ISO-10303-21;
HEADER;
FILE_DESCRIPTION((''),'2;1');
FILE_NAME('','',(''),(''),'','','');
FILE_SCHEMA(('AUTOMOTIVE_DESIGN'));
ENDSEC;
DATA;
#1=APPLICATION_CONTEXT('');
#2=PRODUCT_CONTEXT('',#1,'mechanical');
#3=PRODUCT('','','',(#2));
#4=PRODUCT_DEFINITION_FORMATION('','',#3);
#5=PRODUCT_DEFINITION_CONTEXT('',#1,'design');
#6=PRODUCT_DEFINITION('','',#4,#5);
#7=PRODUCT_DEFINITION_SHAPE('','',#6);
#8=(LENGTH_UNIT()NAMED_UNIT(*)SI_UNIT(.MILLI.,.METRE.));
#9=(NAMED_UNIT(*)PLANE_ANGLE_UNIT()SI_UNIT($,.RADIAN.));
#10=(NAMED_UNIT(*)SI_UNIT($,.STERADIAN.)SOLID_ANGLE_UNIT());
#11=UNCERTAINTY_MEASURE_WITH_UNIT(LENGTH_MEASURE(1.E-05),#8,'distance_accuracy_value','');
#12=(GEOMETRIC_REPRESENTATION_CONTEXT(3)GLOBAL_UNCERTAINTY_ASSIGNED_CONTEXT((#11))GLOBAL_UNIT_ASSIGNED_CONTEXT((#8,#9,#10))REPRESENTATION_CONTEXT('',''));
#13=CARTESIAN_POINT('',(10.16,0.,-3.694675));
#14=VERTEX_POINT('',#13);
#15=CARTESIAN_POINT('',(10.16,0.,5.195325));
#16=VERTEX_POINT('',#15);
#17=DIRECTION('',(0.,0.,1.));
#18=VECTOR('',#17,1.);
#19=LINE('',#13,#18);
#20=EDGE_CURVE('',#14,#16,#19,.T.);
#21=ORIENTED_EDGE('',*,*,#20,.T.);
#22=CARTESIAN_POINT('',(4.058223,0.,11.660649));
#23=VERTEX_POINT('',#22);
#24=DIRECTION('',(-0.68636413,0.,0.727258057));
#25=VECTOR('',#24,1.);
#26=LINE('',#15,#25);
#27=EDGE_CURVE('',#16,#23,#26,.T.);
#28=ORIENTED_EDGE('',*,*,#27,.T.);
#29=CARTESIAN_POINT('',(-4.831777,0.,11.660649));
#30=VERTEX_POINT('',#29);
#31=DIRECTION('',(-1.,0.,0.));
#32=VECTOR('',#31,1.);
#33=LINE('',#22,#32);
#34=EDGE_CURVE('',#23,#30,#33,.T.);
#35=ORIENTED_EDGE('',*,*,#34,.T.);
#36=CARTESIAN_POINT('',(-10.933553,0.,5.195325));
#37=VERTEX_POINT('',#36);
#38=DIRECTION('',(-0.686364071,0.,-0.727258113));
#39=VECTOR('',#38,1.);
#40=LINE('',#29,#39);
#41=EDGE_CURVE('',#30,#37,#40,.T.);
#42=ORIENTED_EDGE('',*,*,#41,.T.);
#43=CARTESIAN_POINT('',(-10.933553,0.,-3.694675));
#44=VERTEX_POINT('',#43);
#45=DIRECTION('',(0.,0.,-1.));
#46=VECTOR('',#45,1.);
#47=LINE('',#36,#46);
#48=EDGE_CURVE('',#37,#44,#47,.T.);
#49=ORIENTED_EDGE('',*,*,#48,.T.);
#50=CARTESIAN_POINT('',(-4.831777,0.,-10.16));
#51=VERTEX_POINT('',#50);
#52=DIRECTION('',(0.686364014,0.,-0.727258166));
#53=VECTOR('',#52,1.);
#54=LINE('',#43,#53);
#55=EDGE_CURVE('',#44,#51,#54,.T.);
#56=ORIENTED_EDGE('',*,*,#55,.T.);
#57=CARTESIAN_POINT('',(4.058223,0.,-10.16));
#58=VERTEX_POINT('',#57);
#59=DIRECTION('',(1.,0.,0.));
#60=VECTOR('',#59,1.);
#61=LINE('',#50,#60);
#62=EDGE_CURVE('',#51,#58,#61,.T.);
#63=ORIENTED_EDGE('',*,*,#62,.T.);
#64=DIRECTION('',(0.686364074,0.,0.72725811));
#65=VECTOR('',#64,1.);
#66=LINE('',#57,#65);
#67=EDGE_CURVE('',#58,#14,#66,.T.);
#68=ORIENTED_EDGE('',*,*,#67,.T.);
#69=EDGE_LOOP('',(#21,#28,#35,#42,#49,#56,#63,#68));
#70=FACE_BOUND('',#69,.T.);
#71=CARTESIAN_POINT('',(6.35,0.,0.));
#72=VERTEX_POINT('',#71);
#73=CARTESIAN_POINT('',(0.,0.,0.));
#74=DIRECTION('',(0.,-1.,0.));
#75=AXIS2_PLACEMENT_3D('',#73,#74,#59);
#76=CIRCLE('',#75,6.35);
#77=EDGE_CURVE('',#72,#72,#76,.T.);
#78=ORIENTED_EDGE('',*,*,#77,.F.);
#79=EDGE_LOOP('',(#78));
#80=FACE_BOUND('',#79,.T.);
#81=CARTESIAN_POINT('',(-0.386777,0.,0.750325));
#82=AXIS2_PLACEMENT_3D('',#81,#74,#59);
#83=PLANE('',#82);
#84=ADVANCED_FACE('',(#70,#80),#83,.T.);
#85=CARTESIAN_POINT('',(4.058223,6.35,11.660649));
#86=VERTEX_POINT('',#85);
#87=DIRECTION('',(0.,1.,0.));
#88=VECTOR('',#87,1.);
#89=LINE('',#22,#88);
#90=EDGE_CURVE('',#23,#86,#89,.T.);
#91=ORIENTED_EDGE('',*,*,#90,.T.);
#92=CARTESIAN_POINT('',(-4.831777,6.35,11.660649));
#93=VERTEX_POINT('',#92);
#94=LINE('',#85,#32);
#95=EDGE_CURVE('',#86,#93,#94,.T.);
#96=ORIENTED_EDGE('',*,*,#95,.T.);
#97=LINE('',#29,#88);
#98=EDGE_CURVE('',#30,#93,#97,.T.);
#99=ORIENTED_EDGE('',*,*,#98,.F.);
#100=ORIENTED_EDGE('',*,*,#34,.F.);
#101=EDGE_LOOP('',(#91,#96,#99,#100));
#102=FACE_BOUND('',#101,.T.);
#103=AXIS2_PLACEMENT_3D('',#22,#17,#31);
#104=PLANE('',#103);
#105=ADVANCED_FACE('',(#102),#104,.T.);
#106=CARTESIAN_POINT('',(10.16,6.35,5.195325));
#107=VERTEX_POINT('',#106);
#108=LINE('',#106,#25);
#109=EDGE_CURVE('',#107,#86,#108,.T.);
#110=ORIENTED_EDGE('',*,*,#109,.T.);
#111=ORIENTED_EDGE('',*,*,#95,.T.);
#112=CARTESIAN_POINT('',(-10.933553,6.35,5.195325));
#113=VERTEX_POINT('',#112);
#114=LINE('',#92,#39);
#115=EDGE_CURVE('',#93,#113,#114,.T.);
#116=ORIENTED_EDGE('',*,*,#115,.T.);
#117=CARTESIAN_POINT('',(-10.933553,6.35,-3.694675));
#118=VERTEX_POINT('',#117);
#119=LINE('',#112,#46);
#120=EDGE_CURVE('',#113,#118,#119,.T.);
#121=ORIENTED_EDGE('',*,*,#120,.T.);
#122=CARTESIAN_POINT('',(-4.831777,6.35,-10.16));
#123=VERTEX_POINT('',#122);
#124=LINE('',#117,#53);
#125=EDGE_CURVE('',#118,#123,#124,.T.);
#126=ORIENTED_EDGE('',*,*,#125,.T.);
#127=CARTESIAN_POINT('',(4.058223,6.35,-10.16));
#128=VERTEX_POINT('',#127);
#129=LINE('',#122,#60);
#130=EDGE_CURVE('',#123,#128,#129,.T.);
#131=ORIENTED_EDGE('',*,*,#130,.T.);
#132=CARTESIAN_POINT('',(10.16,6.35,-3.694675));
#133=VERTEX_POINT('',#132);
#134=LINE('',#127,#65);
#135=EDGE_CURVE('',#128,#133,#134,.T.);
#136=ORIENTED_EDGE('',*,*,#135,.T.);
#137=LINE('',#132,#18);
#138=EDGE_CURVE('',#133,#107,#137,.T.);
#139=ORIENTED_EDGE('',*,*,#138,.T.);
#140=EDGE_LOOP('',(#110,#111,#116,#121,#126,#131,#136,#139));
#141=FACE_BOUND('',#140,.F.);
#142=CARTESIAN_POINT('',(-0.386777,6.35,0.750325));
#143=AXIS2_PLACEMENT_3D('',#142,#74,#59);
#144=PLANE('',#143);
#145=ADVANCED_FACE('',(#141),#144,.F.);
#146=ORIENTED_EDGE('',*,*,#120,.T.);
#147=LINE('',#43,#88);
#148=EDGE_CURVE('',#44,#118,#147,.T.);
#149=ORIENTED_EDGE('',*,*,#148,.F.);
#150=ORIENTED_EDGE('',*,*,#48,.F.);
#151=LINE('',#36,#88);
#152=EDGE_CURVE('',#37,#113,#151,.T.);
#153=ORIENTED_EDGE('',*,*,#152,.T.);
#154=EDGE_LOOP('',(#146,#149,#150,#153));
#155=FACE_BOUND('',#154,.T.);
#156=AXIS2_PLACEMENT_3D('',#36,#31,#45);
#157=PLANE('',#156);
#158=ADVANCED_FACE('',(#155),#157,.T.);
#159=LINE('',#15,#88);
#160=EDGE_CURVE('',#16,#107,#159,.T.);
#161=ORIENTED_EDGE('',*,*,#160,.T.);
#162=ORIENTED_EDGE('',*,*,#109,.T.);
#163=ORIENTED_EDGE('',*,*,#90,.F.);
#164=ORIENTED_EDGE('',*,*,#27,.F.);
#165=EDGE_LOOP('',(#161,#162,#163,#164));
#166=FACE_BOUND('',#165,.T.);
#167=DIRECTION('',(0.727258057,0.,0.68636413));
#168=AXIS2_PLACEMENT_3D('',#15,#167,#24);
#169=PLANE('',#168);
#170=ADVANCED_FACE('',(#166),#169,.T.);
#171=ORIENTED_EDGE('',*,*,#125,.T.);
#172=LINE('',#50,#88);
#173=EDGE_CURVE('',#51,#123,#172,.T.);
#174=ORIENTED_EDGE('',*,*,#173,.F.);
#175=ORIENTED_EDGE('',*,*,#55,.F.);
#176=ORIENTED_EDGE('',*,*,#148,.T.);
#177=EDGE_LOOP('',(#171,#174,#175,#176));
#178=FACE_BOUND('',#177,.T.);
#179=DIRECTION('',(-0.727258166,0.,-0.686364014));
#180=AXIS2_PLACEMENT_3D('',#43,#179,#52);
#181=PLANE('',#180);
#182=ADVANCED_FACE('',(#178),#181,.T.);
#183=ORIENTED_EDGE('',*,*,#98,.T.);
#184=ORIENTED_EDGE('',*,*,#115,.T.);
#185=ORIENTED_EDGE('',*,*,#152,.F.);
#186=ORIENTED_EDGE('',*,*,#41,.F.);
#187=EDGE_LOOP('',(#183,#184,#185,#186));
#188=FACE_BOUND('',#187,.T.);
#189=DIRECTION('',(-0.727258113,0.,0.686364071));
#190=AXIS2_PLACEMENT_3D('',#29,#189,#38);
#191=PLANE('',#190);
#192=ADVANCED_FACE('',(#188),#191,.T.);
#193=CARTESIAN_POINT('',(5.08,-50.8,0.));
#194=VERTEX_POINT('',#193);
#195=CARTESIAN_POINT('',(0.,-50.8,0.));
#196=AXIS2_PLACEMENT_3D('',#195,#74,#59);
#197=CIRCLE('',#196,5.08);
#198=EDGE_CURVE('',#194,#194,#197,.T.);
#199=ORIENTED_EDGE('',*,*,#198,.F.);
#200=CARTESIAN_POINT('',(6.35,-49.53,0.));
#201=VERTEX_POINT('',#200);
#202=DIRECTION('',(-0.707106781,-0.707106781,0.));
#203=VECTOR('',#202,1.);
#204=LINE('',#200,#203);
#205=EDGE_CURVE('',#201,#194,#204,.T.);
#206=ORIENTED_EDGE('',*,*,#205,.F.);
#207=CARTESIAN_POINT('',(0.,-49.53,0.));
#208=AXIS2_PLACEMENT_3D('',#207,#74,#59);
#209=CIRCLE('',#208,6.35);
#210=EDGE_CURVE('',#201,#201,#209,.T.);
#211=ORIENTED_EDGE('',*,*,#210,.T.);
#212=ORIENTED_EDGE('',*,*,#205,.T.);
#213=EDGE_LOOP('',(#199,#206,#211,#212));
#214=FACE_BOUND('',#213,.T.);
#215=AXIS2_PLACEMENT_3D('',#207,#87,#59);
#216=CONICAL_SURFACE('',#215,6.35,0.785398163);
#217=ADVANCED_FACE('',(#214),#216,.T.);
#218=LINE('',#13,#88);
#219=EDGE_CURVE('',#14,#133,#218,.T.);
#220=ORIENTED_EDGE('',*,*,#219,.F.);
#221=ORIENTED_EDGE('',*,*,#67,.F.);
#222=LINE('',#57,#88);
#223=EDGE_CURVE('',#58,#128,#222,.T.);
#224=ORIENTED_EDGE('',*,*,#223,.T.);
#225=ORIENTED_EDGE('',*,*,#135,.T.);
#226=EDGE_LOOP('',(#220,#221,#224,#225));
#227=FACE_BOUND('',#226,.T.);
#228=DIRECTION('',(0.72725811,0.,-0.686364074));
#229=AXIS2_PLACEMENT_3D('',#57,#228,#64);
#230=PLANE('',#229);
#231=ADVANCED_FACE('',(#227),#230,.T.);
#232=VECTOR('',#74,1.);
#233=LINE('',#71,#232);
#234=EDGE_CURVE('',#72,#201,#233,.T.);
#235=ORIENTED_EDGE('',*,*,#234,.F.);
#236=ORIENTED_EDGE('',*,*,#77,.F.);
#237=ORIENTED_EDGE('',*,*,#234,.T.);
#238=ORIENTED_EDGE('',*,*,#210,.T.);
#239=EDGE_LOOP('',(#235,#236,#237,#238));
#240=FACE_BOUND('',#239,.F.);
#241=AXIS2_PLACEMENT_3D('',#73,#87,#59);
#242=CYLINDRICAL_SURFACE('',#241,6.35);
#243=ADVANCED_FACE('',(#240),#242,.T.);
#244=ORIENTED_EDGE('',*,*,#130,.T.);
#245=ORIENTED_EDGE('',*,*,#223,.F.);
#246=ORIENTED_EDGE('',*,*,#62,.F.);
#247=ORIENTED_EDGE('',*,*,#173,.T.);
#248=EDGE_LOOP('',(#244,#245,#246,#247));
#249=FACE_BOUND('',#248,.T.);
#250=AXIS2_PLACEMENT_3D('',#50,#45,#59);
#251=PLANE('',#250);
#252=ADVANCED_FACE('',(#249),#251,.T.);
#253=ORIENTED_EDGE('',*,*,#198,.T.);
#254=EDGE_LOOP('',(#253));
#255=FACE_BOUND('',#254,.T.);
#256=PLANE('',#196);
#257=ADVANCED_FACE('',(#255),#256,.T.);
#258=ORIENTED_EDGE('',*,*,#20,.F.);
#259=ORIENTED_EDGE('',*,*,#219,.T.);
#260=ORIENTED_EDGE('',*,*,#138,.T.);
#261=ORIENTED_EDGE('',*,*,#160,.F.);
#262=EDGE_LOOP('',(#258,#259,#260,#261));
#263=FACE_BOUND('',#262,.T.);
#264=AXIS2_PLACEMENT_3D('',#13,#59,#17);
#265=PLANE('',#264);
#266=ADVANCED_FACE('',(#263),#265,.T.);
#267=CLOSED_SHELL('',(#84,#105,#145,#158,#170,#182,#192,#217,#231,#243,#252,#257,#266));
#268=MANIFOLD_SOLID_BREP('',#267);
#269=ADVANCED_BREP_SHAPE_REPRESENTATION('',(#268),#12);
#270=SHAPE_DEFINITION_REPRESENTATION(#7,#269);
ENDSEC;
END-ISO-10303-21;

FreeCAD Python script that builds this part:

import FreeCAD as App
import Part
import Sketcher
from FreeCAD import Vector
Q = App.Units.Quantity


def edges_at(feature, points):
    """Names of the edges that pass closest to the given points."""
    edges = feature.Shape.Edges
    near = lambda p: min(range(len(edges)), key=lambda i: edges[i].distToShape(Part.Vertex(*p))[0])
    return sorted({f"Edge{near(p) + 1}" for p in points})


def add_polygon(sketch, points):
    """Adds a closed chain of lines whose ends are joined by coincident constraints."""
    first, n = sketch.GeometryCount, len(points)
    for a, b in zip(points, points[1:] + points[:1]):
        sketch.addGeometry(Part.LineSegment(App.Vector(*a, 0), App.Vector(*b, 0)), False)
    for i in range(n):
        sketch.addConstraint(Sketcher.Constraint("Coincident", first + i, 2, first + (i + 1) % n, 1))

doc = App.newDocument("Part")
body = doc.addObject("PartDesign::Body", "Body")

# Sketch on XZ plane
sketch1 = doc.addObject("Sketcher::SketchObject", "Sketch")
body.addObject(sketch1)
sketch1.AttachmentSupport = (doc.XZ_Plane, [""])
sketch1.MapMode = "FlatFace"
sketch1.addGeometry(Part.Circle(Vector(0, 0, 0), Vector(0, 0, 1), 6.35), False)
sketch1.addConstraint(Sketcher.Constraint("Coincident", 0, 3, -1, 1))
sketch1.addConstraint(Sketcher.Constraint("Diameter", 0, Q("0.5 in")))
pad1 = doc.addObject("PartDesign::Pad", "Pad")
body.addObject(pad1)
pad1.Profile = sketch1
pad1.Length = Q("2 in")

# Sketch on XZ plane
sketch2 = doc.addObject("Sketcher::SketchObject", "Sketch001")
body.addObject(sketch2)
sketch2.AttachmentSupport = (doc.XZ_Plane, [""])
sketch2.MapMode = "FlatFace"
add_polygon(sketch2, [(-10.933553, -3.694675), (-4.831777, -10.16), (4.058223, -10.16), (10.16, -3.694675), (10.16, 5.195325), (4.058223, 11.660649), (-4.831777, 11.660649), (-10.933553, 5.195325)])  # lines 0-7
sketch2.addConstraint(Sketcher.Constraint("Horizontal", 1))
sketch2.addConstraint(Sketcher.Constraint("Vertical", 3))
sketch2.addConstraint(Sketcher.Constraint("Horizontal", 5))
sketch2.addConstraint(Sketcher.Constraint("Vertical", 7))
sketch2.addConstraint(Sketcher.Constraint("Parallel", 0, 4))
sketch2.addConstraint(Sketcher.Constraint("Parallel", 2, 6))
sketch2.addConstraint(Sketcher.Constraint("Horizontal", 3, 2, 6, 2))
sketch2.addConstraint(Sketcher.Constraint("Horizontal", 2, 2, 7, 2))
sketch2.addConstraint(Sketcher.Constraint("Vertical", 1, 2, 4, 2))
sketch2.addConstraint(Sketcher.Constraint("Vertical", 0, 2, 5, 2))
sketch2.addConstraint(Sketcher.Constraint("Equal", 5, 3))
sketch2.addConstraint(Sketcher.Constraint("DistanceX", 1, 1, 1, 2, Q("0.35 in")))
sketch2.addConstraint(Sketcher.Constraint("DistanceY", 0, 2, -1, 1, Q("0.4 in")))
sketch2.addConstraint(Sketcher.Constraint("DistanceX", -1, 1, 2, 2, Q("0.4 in")))
sketch2.addConstraint(Sketcher.Constraint("Distance", 0, Q("0.35 in")))
sketch2.addConstraint(Sketcher.Constraint("DistanceY", -1, 1, 4, 2, 11.660649))
pad2 = doc.addObject("PartDesign::Pad", "Pad001")
body.addObject(pad2)
pad2.Profile = sketch2
pad2.Length = Q("0.25 in")
pad2.Reversed = True
doc.recompute()

chamfer = doc.addObject("PartDesign::Chamfer", "Chamfer")
body.addObject(chamfer)
chamfer.Base = (pad2, edges_at(pad2, [(-6.35, -50.8, 0)]))
chamfer.Size = Q("0.05 in")

doc.recompute()
